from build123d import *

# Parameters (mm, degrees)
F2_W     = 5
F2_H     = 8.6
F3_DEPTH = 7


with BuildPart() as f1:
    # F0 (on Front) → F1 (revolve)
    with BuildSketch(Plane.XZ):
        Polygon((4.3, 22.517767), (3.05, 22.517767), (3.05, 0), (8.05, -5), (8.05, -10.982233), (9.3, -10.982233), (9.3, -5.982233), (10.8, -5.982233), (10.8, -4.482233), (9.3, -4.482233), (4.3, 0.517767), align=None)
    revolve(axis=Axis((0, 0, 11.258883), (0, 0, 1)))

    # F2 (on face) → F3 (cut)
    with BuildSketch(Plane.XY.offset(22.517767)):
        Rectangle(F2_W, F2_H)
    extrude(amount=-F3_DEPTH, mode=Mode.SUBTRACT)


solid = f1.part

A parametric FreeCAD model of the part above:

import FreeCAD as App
import Part
import Sketcher

V = App.Vector
Q = App.Units.Quantity

doc = App.newDocument("Part")
body = doc.addObject("PartDesign::Body", "Body")

# Sketch on XZ plane
sketch1 = doc.addObject("Sketcher::SketchObject", "Sketch")
body.addObject(sketch1)
sketch1.AttachmentSupport = (doc.XZ_Plane, [""])
sketch1.MapMode = "FlatFace"
sketch1.addGeometry([
    Part.LineSegment(V(4.3, 22.5, 0), V(3, 22.5, 0)),  # 0
    Part.LineSegment(V(3, 22.5, 0), V(3, 0, 0)),  # 1
    Part.LineSegment(V(3, 0, 0), V(8.1, -5, 0)),  # 2
    Part.LineSegment(V(8.1, -5, 0), V(8.1, -11, 0)),  # 3
    Part.LineSegment(V(8.1, -11, 0), V(9.3, -11, 0)),  # 4
    Part.LineSegment(V(9.3, -11, 0), V(9.3, -6, 0)),  # 5
    Part.LineSegment(V(9.3, -6, 0), V(10.8, -6, 0)),  # 6
    Part.LineSegment(V(10.8, -6, 0), V(10.8, -4.5, 0)),  # 7
    Part.LineSegment(V(10.8, -4.5, 0), V(9.3, -4.5, 0)),  # 8
    Part.LineSegment(V(9.3, -4.5, 0), V(4.3, 0.5, 0)),  # 9
    Part.LineSegment(V(4.3, 0.5, 0), V(4.3, 22.5, 0)),  # 10
], False)
sketch1.addConstraint([
    Sketcher.Constraint("Coincident", 0, 2, 1, 1),
    Sketcher.Constraint("Coincident", 1, 2, 2, 1),
    Sketcher.Constraint("Coincident", 2, 2, 3, 1),
    Sketcher.Constraint("Coincident", 3, 2, 4, 1),
    Sketcher.Constraint("Coincident", 4, 2, 5, 1),
    Sketcher.Constraint("Coincident", 5, 2, 6, 1),
    Sketcher.Constraint("Coincident", 6, 2, 7, 1),
    Sketcher.Constraint("Coincident", 7, 2, 8, 1),
    Sketcher.Constraint("Coincident", 8, 2, 9, 1),
    Sketcher.Constraint("Coincident", 9, 2, 10, 1),
    Sketcher.Constraint("Coincident", 10, 2, 0, 1),
    Sketcher.Constraint("Horizontal", 0),
    Sketcher.Constraint("Vertical", 1),
    Sketcher.Constraint("Vertical", 3),
    Sketcher.Constraint("Horizontal", 4),
    Sketcher.Constraint("Vertical", 5),
    Sketcher.Constraint("Horizontal", 6),
    Sketcher.Constraint("Vertical", 7),
    Sketcher.Constraint("Horizontal", 8),
    Sketcher.Constraint("Vertical", 10),
    Sketcher.Constraint("PointOnObject", 1, 2, -1),
    Sketcher.Constraint("Parallel", 2, 9),
    Sketcher.Constraint("Vertical", 5, 2, 8, 2),
    Sketcher.Constraint("Equal", 0, 4),
    Sketcher.Constraint("Equal", 8, 7),
    Sketcher.Constraint("DistanceY", 5, 1, 5, 2, 5.0),
    Sketcher.Constraint("DistanceY", 10, 1, 10, 2, 22.0),
    Sketcher.Constraint("Angle", 2, Q("-45 deg")),
    Sketcher.Constraint("DistanceX", 6, 1, 6, 2, 1.5),
    Sketcher.Constraint("DistanceY", 2, 2, -1, 1, 5.0),
    Sketcher.Constraint("DistanceX", 0, 2, 0, 1, 1.25),
    Sketcher.Constraint("DistanceX", -1, 1, 4, 2, 9.3),
    Sketcher.Constraint("DistanceY", 1, 2, 1, 1, 22.517767),
])
revolution = doc.addObject("PartDesign::Revolution", "Revolution")
body.addObject(revolution)
revolution.Profile = sketch1
revolution.ReferenceAxis = (sketch1, ["V_Axis"])
revolution.Angle = 360

# Sketch on XY plane
sketch2 = doc.addObject("Sketcher::SketchObject", "Sketch001")
body.addObject(sketch2)
sketch2.AttachmentSupport = (doc.XY_Plane, [""])
sketch2.MapMode = "FlatFace"
sketch2.AttachmentOffset = App.Placement(V(0, 0, 22.517767), App.Rotation())
sketch2.addGeometry([
    Part.LineSegment(V(-2, 4, 0), V(-2, -4, 0)),
    Part.LineSegment(V(-2, -4, 0), V(2, -4, 0)),
    Part.LineSegment(V(2, -4, 0), V(2, 4, 0)),
    Part.LineSegment(V(2, 4, 0), V(-2, 4, 0)),
], False)
sketch2.addConstraint([
    Sketcher.Constraint("Coincident", 0, 2, 1, 1),
    Sketcher.Constraint("Coincident", 1, 2, 2, 1),
    Sketcher.Constraint("Coincident", 2, 2, 3, 1),
    Sketcher.Constraint("Coincident", 3, 2, 0, 1),
    Sketcher.Constraint("Vertical", 0),
    Sketcher.Constraint("Horizontal", 1),
    Sketcher.Constraint("Vertical", 2),
    Sketcher.Constraint("Horizontal", 3),
    Sketcher.Constraint("Symmetric", 0, 2, 2, 2, -1, 1),
    Sketcher.Constraint("DistanceX", 1, 1, 1, 2, 5.0),
    Sketcher.Constraint("DistanceY", 0, 2, 0, 1, 8.6),
])
pocket1 = doc.addObject("PartDesign::Pocket", "Pocket")
body.addObject(pocket1)
pocket1.Profile = sketch2
pocket1.Length = 7

doc.recompute()
